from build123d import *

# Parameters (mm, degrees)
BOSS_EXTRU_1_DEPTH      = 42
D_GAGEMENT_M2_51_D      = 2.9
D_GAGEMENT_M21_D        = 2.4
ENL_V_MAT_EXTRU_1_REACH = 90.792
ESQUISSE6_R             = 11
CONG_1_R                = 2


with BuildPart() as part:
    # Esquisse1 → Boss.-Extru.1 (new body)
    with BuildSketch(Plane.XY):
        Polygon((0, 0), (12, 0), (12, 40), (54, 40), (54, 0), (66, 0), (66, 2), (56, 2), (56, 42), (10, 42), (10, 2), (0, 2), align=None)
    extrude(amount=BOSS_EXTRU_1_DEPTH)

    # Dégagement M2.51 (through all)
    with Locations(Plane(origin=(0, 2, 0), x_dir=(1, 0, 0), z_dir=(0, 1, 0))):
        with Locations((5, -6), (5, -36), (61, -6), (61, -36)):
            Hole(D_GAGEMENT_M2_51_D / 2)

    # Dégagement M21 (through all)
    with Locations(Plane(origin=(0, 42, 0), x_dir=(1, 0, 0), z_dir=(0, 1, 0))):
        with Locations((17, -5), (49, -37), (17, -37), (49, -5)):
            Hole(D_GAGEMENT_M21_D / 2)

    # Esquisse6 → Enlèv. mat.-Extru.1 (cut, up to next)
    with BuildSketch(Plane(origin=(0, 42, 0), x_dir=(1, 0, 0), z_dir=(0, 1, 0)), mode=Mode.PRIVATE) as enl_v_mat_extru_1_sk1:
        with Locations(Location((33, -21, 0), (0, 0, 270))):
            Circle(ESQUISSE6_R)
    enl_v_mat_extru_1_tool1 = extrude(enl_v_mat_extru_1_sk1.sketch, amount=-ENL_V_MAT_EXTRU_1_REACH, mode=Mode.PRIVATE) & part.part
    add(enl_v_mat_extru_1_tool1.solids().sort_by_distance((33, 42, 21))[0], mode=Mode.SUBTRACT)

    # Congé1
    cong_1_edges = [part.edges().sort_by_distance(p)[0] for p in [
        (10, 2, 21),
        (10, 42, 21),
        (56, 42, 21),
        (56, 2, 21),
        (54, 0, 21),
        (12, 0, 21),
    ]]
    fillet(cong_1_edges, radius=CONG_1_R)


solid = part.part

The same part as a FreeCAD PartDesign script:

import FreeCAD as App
import Part
import Sketcher
Q = App.Units.Quantity


def edges_at(feature, points):
    """Names of the edges that pass closest to the given points."""
    edges = feature.Shape.Edges
    near = lambda p: min(range(len(edges)), key=lambda i: edges[i].distToShape(Part.Vertex(*p))[0])
    return sorted({f"Edge{near(p) + 1}" for p in points})

doc = App.newDocument("Part")
body = doc.addObject("PartDesign::Body", "Body")

sketch1 = doc.addObject("Sketcher::SketchObject", "Sketch")
body.addObject(sketch1)
sketch1.AttachmentSupport = (doc.XY_Plane, [""])
sketch1.MapMode = "FlatFace"
sketch1.addGeometry(Part.LineSegment(App.Vector(0, 0, 0), App.Vector(12, 0, 0)), False)
sketch1.addGeometry(Part.LineSegment(App.Vector(12, 0, 0), App.Vector(12, 40, 0)), False)
sketch1.addGeometry(Part.LineSegment(App.Vector(12, 40, 0), App.Vector(54, 40, 0)), False)
sketch1.addGeometry(Part.LineSegment(App.Vector(54, 40, 0), App.Vector(54, 0, 0)), False)
sketch1.addGeometry(Part.LineSegment(App.Vector(54, 0, 0), App.Vector(66, 0, 0)), False)
sketch1.addGeometry(Part.LineSegment(App.Vector(66, 0, 0), App.Vector(66, 2, 0)), False)
sketch1.addGeometry(Part.LineSegment(App.Vector(66, 2, 0), App.Vector(56, 2, 0)), False)
sketch1.addGeometry(Part.LineSegment(App.Vector(56, 2, 0), App.Vector(56, 42, 0)), False)
sketch1.addGeometry(Part.LineSegment(App.Vector(56, 42, 0), App.Vector(10, 42, 0)), False)
sketch1.addGeometry(Part.LineSegment(App.Vector(10, 42, 0), App.Vector(10, 2, 0)), False)
sketch1.addGeometry(Part.LineSegment(App.Vector(10, 2, 0), App.Vector(0, 2, 0)), False)
sketch1.addGeometry(Part.LineSegment(App.Vector(0, 2, 0), App.Vector(0, 0, 0)), False)
sketch1.addConstraint(Sketcher.Constraint("Coincident", 0, 2, 1, 1))
sketch1.addConstraint(Sketcher.Constraint("Coincident", 1, 2, 2, 1))
sketch1.addConstraint(Sketcher.Constraint("Coincident", 2, 2, 3, 1))
sketch1.addConstraint(Sketcher.Constraint("Coincident", 3, 2, 4, 1))
sketch1.addConstraint(Sketcher.Constraint("Coincident", 4, 2, 5, 1))
sketch1.addConstraint(Sketcher.Constraint("Coincident", 5, 2, 6, 1))
sketch1.addConstraint(Sketcher.Constraint("Coincident", 6, 2, 7, 1))
sketch1.addConstraint(Sketcher.Constraint("Coincident", 7, 2, 8, 1))
sketch1.addConstraint(Sketcher.Constraint("Coincident", 8, 2, 9, 1))
sketch1.addConstraint(Sketcher.Constraint("Coincident", 9, 2, 10, 1))
sketch1.addConstraint(Sketcher.Constraint("Coincident", 10, 2, 11, 1))
sketch1.addConstraint(Sketcher.Constraint("Coincident", 11, 2, 0, 1))
sketch1.addConstraint(Sketcher.Constraint("Horizontal", 0))
sketch1.addConstraint(Sketcher.Constraint("Vertical", 1))
sketch1.addConstraint(Sketcher.Constraint("Horizontal", 2))
sketch1.addConstraint(Sketcher.Constraint("Vertical", 3))
sketch1.addConstraint(Sketcher.Constraint("Horizontal", 4))
sketch1.addConstraint(Sketcher.Constraint("Vertical", 5))
sketch1.addConstraint(Sketcher.Constraint("Horizontal", 6))
sketch1.addConstraint(Sketcher.Constraint("Vertical", 7))
sketch1.addConstraint(Sketcher.Constraint("Horizontal", 8))
sketch1.addConstraint(Sketcher.Constraint("Vertical", 9))
sketch1.addConstraint(Sketcher.Constraint("Horizontal", 10))
sketch1.addConstraint(Sketcher.Constraint("Vertical", 11))
sketch1.addConstraint(Sketcher.Constraint("Coincident", 11, 2, -1, 1))
sketch1.addConstraint(Sketcher.Constraint("PointOnObject", 3, 2, -1))
sketch1.addConstraint(Sketcher.Constraint("Horizontal", 6, 2, 9, 2))
sketch1.addConstraint(Sketcher.Constraint("Equal", 0, 4))
sketch1.addConstraint(Sketcher.Constraint("Equal", 6, 10))
sketch1.addConstraint(Sketcher.Constraint("Equal", 3, 7))
sketch1.addConstraint(Sketcher.Constraint("DistanceX", 0, 1, 0, 2, Q("12 mm")))
sketch1.addConstraint(Sketcher.Constraint("DistanceX", 2, 1, 2, 2, Q("42 mm")))
sketch1.addConstraint(Sketcher.Constraint("DistanceX", 6, 2, 6, 1, Q("10 mm")))
sketch1.addConstraint(Sketcher.Constraint("DistanceY", 1, 1, 1, 2, Q("40 mm")))
sketch1.addConstraint(Sketcher.Constraint("DistanceY", 5, 1, 5, 2, Q("2 mm")))
pad1 = doc.addObject("PartDesign::Pad", "Pad")
body.addObject(pad1)
pad1.Profile = sketch1
pad1.Length = 42

sketch2 = doc.addObject("Sketcher::SketchObject", "Sketch001")
body.addObject(sketch2)
sketch2.AttachmentSupport = (doc.XZ_Plane, [""])
sketch2.MapMode = "FlatFace"
sketch2.AttachmentOffset = App.Placement(App.Vector(0, 0, -2), App.Rotation())
sketch2.addGeometry(Part.Circle(App.Vector(5, 6, 0), App.Vector(0, 0, 1), 1.4), False)
sketch2.addGeometry(Part.Circle(App.Vector(5, 36, 0), App.Vector(0, 0, 1), 1.4), False)
sketch2.addGeometry(Part.Circle(App.Vector(61, 6, 0), App.Vector(0, 0, 1), 1.4), False)
sketch2.addGeometry(Part.Circle(App.Vector(61, 36, 0), App.Vector(0, 0, 1), 1.4), False)
sketch2.addConstraint(Sketcher.Constraint("Equal", 0, 1))
sketch2.addConstraint(Sketcher.Constraint("Equal", 1, 2))
sketch2.addConstraint(Sketcher.Constraint("Equal", 2, 3))
sketch2.addConstraint(Sketcher.Constraint("Horizontal", 0, 3, 2, 3))
sketch2.addConstraint(Sketcher.Constraint("Horizontal", 1, 3, 3, 3))
sketch2.addConstraint(Sketcher.Constraint("Vertical", 0, 3, 1, 3))
sketch2.addConstraint(Sketcher.Constraint("Vertical", 2, 3, 3, 3))
sketch2.addConstraint(Sketcher.Constraint("Diameter", 0, Q("2.9 mm")))
sketch2.addConstraint(Sketcher.Constraint("DistanceX", -1, 1, 0, 3, Q("5 mm")))
sketch2.addConstraint(Sketcher.Constraint("DistanceY", -1, 1, 0, 3, Q("6 mm")))
sketch2.addConstraint(Sketcher.Constraint("DistanceY", -1, 1, 1, 3, Q("36 mm")))
sketch2.addConstraint(Sketcher.Constraint("DistanceX", -1, 1, 2, 3, Q("61 mm")))
doc.recompute()
hole = doc.addObject("PartDesign::Hole", "Hole")
body.addObject(hole)
hole.Profile = sketch2
hole.ThreadType = "None"
hole.Diameter = 2.9
hole.DepthType = "ThroughAll"
hole.Reversed = True

sketch3 = doc.addObject("Sketcher::SketchObject", "Sketch002")
body.addObject(sketch3)
sketch3.AttachmentSupport = (doc.XZ_Plane, [""])
sketch3.MapMode = "FlatFace"
sketch3.AttachmentOffset = App.Placement(App.Vector(0, 0, -42), App.Rotation())
sketch3.addGeometry(Part.Circle(App.Vector(17, 5, 0), App.Vector(0, 0, 1), 1.2), False)
sketch3.addGeometry(Part.Circle(App.Vector(49, 37, 0), App.Vector(0, 0, 1), 1.2), False)
sketch3.addGeometry(Part.Circle(App.Vector(17, 37, 0), App.Vector(0, 0, 1), 1.2), False)
sketch3.addGeometry(Part.Circle(App.Vector(49, 5, 0), App.Vector(0, 0, 1), 1.2), False)
sketch3.addConstraint(Sketcher.Constraint("Equal", 0, 1))
sketch3.addConstraint(Sketcher.Constraint("Equal", 1, 2))
sketch3.addConstraint(Sketcher.Constraint("Equal", 2, 3))
sketch3.addConstraint(Sketcher.Constraint("Horizontal", 1, 3, 2, 3))
sketch3.addConstraint(Sketcher.Constraint("Horizontal", 0, 3, 3, 3))
sketch3.addConstraint(Sketcher.Constraint("Vertical", 0, 3, 2, 3))
sketch3.addConstraint(Sketcher.Constraint("Vertical", 1, 3, 3, 3))
sketch3.addConstraint(Sketcher.Constraint("Diameter", 0, Q("2.4 mm")))
sketch3.addConstraint(Sketcher.Constraint("DistanceX", -1, 1, 0, 3, Q("17 mm")))
sketch3.addConstraint(Sketcher.Constraint("DistanceY", -1, 1, 0, 3, Q("5 mm")))
sketch3.addConstraint(Sketcher.Constraint("DistanceX", -1, 1, 1, 3, Q("49 mm")))
sketch3.addConstraint(Sketcher.Constraint("DistanceY", -1, 1, 1, 3, Q("37 mm")))
doc.recompute()
hole2 = doc.addObject("PartDesign::Hole", "Hole001")
body.addObject(hole2)
hole2.Profile = sketch3
hole2.ThreadType = "None"
hole2.Diameter = 2.4
hole2.DepthType = "ThroughAll"
hole2.Reversed = True

sketch4 = doc.addObject("Sketcher::SketchObject", "Sketch003")
body.addObject(sketch4)
sketch4.AttachmentSupport = (doc.XZ_Plane, [""])
sketch4.MapMode = "FlatFace"
sketch4.AttachmentOffset = App.Placement(App.Vector(0, 0, -42), App.Rotation())
sketch4.addGeometry(Part.Circle(App.Vector(33, 21, 0), App.Vector(0, 0, 1), 11), False)
sketch4.addConstraint(Sketcher.Constraint("Diameter", 0, Q("22 mm")))
sketch4.addConstraint(Sketcher.Constraint("DistanceX", -1, 1, 0, 3, Q("33 mm")))
sketch4.addConstraint(Sketcher.Constraint("DistanceY", -1, 1, 0, 3, Q("21 mm")))
pocket1 = doc.addObject("PartDesign::Pocket", "Pocket")
body.addObject(pocket1)
pocket1.Profile = sketch4
pocket1.Type = "UpToFirst"
pocket1.Reversed = True
doc.recompute()

fillet = doc.addObject("PartDesign::Fillet", "Fillet")
body.addObject(fillet)
fillet.Base = (pocket1, edges_at(pocket1, [
    (10, 2, 21),
    (10, 42, 21),
    (56, 42, 21),
    (56, 2, 21),
    (54, 0, 21),
    (12, 0, 21),
]))
fillet.Radius = 2

doc.recompute()
